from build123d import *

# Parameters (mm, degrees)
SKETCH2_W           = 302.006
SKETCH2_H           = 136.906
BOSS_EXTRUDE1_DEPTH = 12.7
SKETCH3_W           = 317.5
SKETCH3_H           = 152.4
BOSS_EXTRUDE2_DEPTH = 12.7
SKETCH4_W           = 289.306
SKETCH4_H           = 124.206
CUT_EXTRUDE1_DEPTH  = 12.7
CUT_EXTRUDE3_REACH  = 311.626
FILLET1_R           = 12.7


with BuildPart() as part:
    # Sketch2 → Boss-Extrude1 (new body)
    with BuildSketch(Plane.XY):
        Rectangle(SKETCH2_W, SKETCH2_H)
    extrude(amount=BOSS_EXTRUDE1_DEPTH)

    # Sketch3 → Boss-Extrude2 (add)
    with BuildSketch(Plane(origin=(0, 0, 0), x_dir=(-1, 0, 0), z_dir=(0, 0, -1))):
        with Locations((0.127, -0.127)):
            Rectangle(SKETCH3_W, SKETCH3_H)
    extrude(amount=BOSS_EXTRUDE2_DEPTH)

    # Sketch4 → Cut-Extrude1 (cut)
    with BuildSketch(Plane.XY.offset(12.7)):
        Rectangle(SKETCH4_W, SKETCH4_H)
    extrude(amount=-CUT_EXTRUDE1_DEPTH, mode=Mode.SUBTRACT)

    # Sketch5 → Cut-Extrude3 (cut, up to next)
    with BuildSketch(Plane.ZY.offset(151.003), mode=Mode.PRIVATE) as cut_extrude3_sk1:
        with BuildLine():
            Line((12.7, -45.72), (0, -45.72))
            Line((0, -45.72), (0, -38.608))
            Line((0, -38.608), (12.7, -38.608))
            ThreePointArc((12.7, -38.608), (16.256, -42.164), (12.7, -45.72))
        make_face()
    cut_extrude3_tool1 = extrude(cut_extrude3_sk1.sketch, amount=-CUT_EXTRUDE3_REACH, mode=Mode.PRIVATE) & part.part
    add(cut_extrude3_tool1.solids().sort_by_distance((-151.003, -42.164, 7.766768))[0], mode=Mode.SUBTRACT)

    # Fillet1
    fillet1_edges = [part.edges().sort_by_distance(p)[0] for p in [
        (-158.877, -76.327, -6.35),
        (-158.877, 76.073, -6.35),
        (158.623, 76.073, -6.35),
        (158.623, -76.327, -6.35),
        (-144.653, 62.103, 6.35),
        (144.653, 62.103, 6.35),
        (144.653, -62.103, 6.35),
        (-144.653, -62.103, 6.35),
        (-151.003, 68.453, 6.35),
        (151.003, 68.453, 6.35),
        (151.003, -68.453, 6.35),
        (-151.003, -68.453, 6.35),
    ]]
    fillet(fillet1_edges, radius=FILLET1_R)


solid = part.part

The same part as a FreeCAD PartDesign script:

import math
import FreeCAD as App
import Part
import Sketcher

V = App.Vector
Q = App.Units.Quantity


def edges_at(feature, points):
    """Names of the edges that pass closest to the given points."""
    edges = feature.Shape.Edges
    near = lambda p: min(range(len(edges)), key=lambda i: edges[i].distToShape(Part.Vertex(*p))[0])
    return sorted({f"Edge{near(p) + 1}" for p in points})


def add_polygon(sketch, points):
    """Adds a closed chain of lines whose ends are joined by coincident constraints."""
    first, n = sketch.GeometryCount, len(points)
    for a, b in zip(points, points[1:] + points[:1]):
        sketch.addGeometry(Part.LineSegment(App.Vector(*a, 0), App.Vector(*b, 0)), False)
    for i in range(n):
        sketch.addConstraint(Sketcher.Constraint("Coincident", first + i, 2, first + (i + 1) % n, 1))

doc = App.newDocument("Part")
body = doc.addObject("PartDesign::Body", "Body")

sketch1 = body.newObject("Sketcher::SketchObject", "Sketch")
sketch1.AttachmentSupport = (doc.getObject("XY_Plane"), [""])
sketch1.MapMode = "FlatFace"
add_polygon(sketch1, [(-151, 68), (-151, -68), (151, -68), (151, 68)])
sketch1.addConstraint(Sketcher.Constraint("Vertical", 0))
sketch1.addConstraint(Sketcher.Constraint("Horizontal", 1))
sketch1.addConstraint(Sketcher.Constraint("Vertical", 2))
sketch1.addConstraint(Sketcher.Constraint("Horizontal", 3))
sketch1.addConstraint(Sketcher.Constraint("Symmetric", 0, 2, 2, 2, -1, 1))
sketch1.addConstraint(Sketcher.Constraint("DistanceX", 1, 1, 1, 2, Q("11.89 in")))
sketch1.addConstraint(Sketcher.Constraint("DistanceY", 0, 2, 0, 1, Q("5.39 in")))
pad1 = body.newObject("PartDesign::Pad", "Pad")
pad1.Profile = sketch1
pad1.Length = Q("0.5 in")

sketch2 = body.newObject("Sketcher::SketchObject", "Sketch001")
sketch2.AttachmentSupport = (doc.getObject("XY_Plane"), [""])
sketch2.MapMode = "FlatFace"
add_polygon(sketch2, [(159, 76), (159, -76), (-159, -76), (-159, 76)])
sketch2.addConstraint(Sketcher.Constraint("Vertical", 0))
sketch2.addConstraint(Sketcher.Constraint("Horizontal", 1))
sketch2.addConstraint(Sketcher.Constraint("Vertical", 2))
sketch2.addConstraint(Sketcher.Constraint("Horizontal", 3))
sketch2.addConstraint(Sketcher.Constraint("DistanceY", 0, 2, 0, 1, Q("6 in")))
sketch2.addConstraint(Sketcher.Constraint("DistanceX", 1, 2, 1, 1, Q("12.5 in")))
sketch2.addConstraint(Sketcher.Constraint("DistanceX", -1, 1, 0, 2, Q("6.245 in")))
sketch2.addConstraint(Sketcher.Constraint("DistanceY", 0, 2, -1, 1, Q("3.005 in")))
pad2 = body.newObject("PartDesign::Pad", "Pad001")
pad2.Profile = sketch2
pad2.Length = Q("0.5 in")
pad2.Reversed = True

sketch3 = body.newObject("Sketcher::SketchObject", "Sketch002")
sketch3.AttachmentSupport = (doc.getObject("XY_Plane"), [""])
sketch3.MapMode = "FlatFace"
sketch3.AttachmentOffset = App.Placement(V(0, 0, 0.5 * 25.4), App.Rotation())
add_polygon(sketch3, [(-145, 62), (-145, -62), (145, -62), (145, 62)])
sketch3.addConstraint(Sketcher.Constraint("Vertical", 0))
sketch3.addConstraint(Sketcher.Constraint("Horizontal", 1))
sketch3.addConstraint(Sketcher.Constraint("Vertical", 2))
sketch3.addConstraint(Sketcher.Constraint("Horizontal", 3))
sketch3.addConstraint(Sketcher.Constraint("Symmetric", 0, 2, 2, 2, -1, 1))
sketch3.addConstraint(Sketcher.Constraint("DistanceX", 1, 1, 1, 2, Q("11.39 in")))
sketch3.addConstraint(Sketcher.Constraint("DistanceY", 0, 2, 0, 1, Q("4.89 in")))
pocket1 = body.newObject("PartDesign::Pocket", "Pocket")
pocket1.Profile = sketch3
pocket1.Length = Q("0.5 in")

sketch4 = body.newObject("Sketcher::SketchObject", "Sketch003")
sketch4.AttachmentSupport = (doc.getObject("YZ_Plane"), [""])
sketch4.MapMode = "FlatFace"
sketch4.AttachmentOffset = App.Placement(V(0, 0, -5.945 * 25.4), App.Rotation())
sketch4.addGeometry(Part.LineSegment(V(-45.7, 0, 0), V(-45.7, 12.7, 0)), False)
sketch4.addGeometry(Part.ArcOfCircle(Part.Circle(V(-42.2, 12.7, 0), V(0, 0, 1), 3.6), math.radians(0), math.radians(180)), False)
sketch4.addGeometry(Part.LineSegment(V(-38.6, 12.7, 0), V(-38.6, 0, 0)), False)
sketch4.addGeometry(Part.LineSegment(V(-38.6, 0, 0), V(-45.7, 0, 0)), False)
sketch4.addConstraint(Sketcher.Constraint("Tangent", 0, 2, 1, 2))
sketch4.addConstraint(Sketcher.Constraint("Tangent", 1, 1, 2, 1))
sketch4.addConstraint(Sketcher.Constraint("Coincident", 2, 2, 3, 1))
sketch4.addConstraint(Sketcher.Constraint("Coincident", 3, 2, 0, 1))
sketch4.addConstraint(Sketcher.Constraint("Vertical", 0))
sketch4.addConstraint(Sketcher.Constraint("Vertical", 2))
sketch4.addConstraint(Sketcher.Constraint("Horizontal", 3))
sketch4.addConstraint(Sketcher.Constraint("PointOnObject", 2, 2, -1))
sketch4.addConstraint(Sketcher.Constraint("Radius", 1, Q("0.14 in")))
sketch4.addConstraint(Sketcher.Constraint("DistanceY", 0, 1, 0, 2, Q("0.5 in")))
sketch4.addConstraint(Sketcher.Constraint("DistanceX", 0, 2, -1, 1, Q("1.8 in")))
pocket2 = body.newObject("PartDesign::Pocket", "Pocket001")
pocket2.Profile = sketch4
pocket2.Type = "UpToFirst"
pocket2.Reversed = True
doc.recompute()

fillet = body.newObject("PartDesign::Fillet", "Fillet")
fillet.Base = (pocket2, edges_at(pocket2, [
    (-158.877, -76.327, -6.35),
    (-158.877, 76.073, -6.35),
    (158.623, 76.073, -6.35),
    (158.623, -76.327, -6.35),
    (-144.653, 62.103, 6.35),
    (144.653, 62.103, 6.35),
    (144.653, -62.103, 6.35),
    (-144.653, -62.103, 6.35),
    (-151.003, 68.453, 6.35),
    (151.003, 68.453, 6.35),
    (151.003, -68.453, 6.35),
    (-151.003, -68.453, 6.35),
]))
fillet.Radius = Q("0.5 in")

doc.recompute()
